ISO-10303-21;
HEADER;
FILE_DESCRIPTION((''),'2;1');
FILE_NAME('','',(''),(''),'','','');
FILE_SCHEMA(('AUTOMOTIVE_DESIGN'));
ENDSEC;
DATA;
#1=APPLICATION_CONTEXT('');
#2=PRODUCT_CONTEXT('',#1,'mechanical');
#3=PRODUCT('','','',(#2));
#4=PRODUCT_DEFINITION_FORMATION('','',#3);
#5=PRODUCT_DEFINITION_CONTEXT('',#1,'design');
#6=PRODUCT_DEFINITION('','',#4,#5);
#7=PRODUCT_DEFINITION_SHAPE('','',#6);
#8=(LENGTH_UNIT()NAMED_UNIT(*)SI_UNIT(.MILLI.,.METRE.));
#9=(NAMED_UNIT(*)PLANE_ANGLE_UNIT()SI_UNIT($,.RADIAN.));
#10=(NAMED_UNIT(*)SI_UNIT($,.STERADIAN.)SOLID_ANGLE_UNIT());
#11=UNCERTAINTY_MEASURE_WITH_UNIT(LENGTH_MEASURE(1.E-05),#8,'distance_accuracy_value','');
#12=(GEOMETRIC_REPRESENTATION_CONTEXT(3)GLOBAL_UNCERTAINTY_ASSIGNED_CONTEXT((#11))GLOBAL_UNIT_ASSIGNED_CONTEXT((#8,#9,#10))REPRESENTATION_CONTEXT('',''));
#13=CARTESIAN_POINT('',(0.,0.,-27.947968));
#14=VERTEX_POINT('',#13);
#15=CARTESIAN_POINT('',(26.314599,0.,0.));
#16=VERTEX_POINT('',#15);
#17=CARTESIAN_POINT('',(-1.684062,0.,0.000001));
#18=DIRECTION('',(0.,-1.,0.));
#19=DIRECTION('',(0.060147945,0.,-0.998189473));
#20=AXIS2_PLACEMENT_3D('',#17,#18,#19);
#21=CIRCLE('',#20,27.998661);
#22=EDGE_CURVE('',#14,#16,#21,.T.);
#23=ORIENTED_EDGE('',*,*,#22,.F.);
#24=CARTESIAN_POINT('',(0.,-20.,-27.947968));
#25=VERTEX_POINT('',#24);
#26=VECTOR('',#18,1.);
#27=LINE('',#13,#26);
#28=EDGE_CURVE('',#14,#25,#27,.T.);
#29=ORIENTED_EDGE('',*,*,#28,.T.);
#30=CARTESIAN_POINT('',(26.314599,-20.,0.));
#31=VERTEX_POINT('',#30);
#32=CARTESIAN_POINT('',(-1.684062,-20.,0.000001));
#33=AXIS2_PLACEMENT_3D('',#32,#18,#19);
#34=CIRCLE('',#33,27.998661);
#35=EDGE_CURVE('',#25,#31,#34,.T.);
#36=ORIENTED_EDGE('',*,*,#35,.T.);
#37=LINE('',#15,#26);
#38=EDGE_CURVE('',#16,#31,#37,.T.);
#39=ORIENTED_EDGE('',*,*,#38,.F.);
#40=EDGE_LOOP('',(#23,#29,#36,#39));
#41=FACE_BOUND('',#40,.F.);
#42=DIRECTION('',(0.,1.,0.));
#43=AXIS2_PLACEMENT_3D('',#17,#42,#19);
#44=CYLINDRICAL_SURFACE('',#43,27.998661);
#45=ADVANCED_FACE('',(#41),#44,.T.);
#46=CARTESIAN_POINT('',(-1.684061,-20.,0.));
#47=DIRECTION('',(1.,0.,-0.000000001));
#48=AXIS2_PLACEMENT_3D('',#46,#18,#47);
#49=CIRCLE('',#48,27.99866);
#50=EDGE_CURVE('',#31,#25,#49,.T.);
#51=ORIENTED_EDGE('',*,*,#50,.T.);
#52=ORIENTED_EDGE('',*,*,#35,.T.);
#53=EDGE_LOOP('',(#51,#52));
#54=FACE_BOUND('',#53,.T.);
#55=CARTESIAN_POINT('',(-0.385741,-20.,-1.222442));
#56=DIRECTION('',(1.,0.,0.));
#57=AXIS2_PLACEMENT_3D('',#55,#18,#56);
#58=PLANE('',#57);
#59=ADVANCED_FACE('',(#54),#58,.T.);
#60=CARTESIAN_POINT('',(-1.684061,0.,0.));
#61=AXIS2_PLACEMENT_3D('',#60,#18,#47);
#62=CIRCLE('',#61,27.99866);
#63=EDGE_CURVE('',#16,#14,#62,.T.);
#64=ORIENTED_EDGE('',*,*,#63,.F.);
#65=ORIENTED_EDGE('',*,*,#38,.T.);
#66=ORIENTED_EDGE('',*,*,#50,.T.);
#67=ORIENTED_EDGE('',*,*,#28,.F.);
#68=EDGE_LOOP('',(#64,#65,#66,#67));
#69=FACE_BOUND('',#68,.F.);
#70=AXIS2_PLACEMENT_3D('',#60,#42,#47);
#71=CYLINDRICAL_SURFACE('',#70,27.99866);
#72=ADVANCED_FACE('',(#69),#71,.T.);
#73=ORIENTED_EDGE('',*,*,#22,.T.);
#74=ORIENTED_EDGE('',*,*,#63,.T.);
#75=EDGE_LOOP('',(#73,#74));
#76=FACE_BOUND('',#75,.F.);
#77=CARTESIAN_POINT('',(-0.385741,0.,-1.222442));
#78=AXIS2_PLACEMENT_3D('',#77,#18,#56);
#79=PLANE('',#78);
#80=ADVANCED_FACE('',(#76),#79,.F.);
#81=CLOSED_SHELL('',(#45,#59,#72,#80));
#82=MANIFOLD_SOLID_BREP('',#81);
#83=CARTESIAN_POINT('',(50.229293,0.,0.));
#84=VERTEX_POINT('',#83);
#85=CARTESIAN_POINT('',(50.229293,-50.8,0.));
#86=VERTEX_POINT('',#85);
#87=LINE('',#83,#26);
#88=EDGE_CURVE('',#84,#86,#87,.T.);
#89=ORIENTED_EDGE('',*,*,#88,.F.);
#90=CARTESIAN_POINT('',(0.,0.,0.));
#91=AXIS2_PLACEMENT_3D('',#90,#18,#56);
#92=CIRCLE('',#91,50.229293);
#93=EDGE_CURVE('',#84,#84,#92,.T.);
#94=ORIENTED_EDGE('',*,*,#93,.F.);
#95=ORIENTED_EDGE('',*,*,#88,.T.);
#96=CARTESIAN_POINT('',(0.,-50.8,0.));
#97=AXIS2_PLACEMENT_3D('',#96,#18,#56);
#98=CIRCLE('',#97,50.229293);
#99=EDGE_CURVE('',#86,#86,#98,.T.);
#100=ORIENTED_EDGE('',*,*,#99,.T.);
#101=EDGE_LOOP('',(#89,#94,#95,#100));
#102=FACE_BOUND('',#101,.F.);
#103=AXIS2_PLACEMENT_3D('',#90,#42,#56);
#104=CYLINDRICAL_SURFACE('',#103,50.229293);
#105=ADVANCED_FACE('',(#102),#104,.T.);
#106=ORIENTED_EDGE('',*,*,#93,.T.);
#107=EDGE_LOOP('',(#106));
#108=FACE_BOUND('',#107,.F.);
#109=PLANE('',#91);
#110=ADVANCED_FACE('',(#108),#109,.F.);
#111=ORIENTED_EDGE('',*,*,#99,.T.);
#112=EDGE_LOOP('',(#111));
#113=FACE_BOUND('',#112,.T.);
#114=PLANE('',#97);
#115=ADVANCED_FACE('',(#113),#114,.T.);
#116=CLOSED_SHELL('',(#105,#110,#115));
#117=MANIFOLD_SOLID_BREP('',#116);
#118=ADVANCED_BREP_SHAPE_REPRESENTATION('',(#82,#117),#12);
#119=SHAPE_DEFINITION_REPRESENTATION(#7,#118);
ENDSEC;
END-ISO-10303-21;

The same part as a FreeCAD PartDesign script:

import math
import FreeCAD as App
import Part
import Sketcher

V = App.Vector
Q = App.Units.Quantity

doc = App.newDocument("Part")
body = doc.addObject("PartDesign::Body", "Body")

# Sketch on XZ plane
sketch1 = body.newObject("Sketcher::SketchObject", "Sketch")
sketch1.AttachmentSupport = (doc.getObject("XZ_Plane"), [""])
sketch1.MapMode = "FlatFace"
sketch1.addGeometry(Part.Circle(V(0, 0, 0), V(0, 0, 1), 50.229293), False)
sketch1.addConstraint(Sketcher.Constraint("Coincident", 0, 3, -1, 1))
sketch1.addConstraint(Sketcher.Constraint("Diameter", 0, Q("100.458586 mm")))
pad1 = body.newObject("PartDesign::Pad", "Pad")
pad1.Profile = sketch1
pad1.Length = 50.8
body2 = doc.addObject("PartDesign::Body", "Body001")

# Sketch on XZ plane
sketch2 = body2.newObject("Sketcher::SketchObject", "Sketch001")
sketch2.AttachmentSupport = (doc.getObject("XZ_Plane001"), [""])
sketch2.MapMode = "FlatFace"
sketch2.addGeometry(Part.ArcOfCircle(Part.Circle(V(-1.684062, 0.000001, 0), V(0, 0, 1), 27.998661), math.radians(-86.551695), math.radians(-0.000001)), False)
sketch2.addGeometry(Part.ArcOfCircle(Part.Circle(V(-1.684061, 0, 0), V(0, 0, 1), 27.99866), math.radians(0), math.radians(273.448304)), False)
sketch2.addConstraint(Sketcher.Constraint("Tangent", 0, 1, 1, 2))
sketch2.addConstraint(Sketcher.Constraint("Coincident", 1, 1, 0, 2))
sketch2.addConstraint(Sketcher.Constraint("PointOnObject", 0, 3, -1))
sketch2.addConstraint(Sketcher.Constraint("PointOnObject", 0, 1, -2))
sketch2.addConstraint(Sketcher.Constraint("PointOnObject", 1, 1, -1))
sketch2.addConstraint(Sketcher.Constraint("Radius", 0, Q("27.998661 mm")))
sketch2.addConstraint(Sketcher.Constraint("DistanceX", -1, 1, 1, 1, Q("26.314599 mm")))
pad2 = body2.newObject("PartDesign::Pad", "Pad001")
pad2.Profile = sketch2
pad2.Length = 20

doc.recompute()
